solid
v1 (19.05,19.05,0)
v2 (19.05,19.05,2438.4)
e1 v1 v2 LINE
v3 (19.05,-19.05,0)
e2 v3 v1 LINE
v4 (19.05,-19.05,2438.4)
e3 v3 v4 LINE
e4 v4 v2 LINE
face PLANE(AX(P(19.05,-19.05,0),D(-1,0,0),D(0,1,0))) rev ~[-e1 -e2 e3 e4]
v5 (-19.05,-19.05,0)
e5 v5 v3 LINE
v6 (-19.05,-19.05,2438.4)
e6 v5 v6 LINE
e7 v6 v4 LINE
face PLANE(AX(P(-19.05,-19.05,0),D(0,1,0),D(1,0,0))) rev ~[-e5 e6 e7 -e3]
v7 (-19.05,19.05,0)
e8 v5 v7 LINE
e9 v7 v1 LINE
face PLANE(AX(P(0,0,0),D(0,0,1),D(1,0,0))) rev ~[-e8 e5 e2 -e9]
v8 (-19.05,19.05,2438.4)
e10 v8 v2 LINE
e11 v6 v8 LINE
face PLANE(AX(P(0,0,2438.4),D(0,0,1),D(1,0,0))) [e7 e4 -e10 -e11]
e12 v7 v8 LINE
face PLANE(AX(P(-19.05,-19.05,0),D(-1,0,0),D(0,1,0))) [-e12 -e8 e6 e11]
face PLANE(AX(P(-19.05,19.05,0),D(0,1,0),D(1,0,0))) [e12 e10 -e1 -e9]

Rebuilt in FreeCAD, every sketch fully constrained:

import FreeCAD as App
import Part
import Sketcher
Q = App.Units.Quantity


def add_polygon(sketch, points):
    """Adds a closed chain of lines whose ends are joined by coincident constraints."""
    first, n = sketch.GeometryCount, len(points)
    for a, b in zip(points, points[1:] + points[:1]):
        sketch.addGeometry(Part.LineSegment(App.Vector(*a, 0), App.Vector(*b, 0)), False)
    for i in range(n):
        sketch.addConstraint(Sketcher.Constraint("Coincident", first + i, 2, first + (i + 1) % n, 1))

doc = App.newDocument("Part")
body = doc.addObject("PartDesign::Body", "Body")

sketch1 = body.newObject("Sketcher::SketchObject", "Sketch")
sketch1.AttachmentSupport = (doc.getObject("XY_Plane"), [""])
sketch1.MapMode = "FlatFace"
add_polygon(sketch1, [(-19, 19), (-19, -19), (19, -19), (19, 19)])
sketch1.addConstraint(Sketcher.Constraint("Vertical", 0))
sketch1.addConstraint(Sketcher.Constraint("Horizontal", 1))
sketch1.addConstraint(Sketcher.Constraint("Vertical", 2))
sketch1.addConstraint(Sketcher.Constraint("Horizontal", 3))
sketch1.addConstraint(Sketcher.Constraint("Symmetric", 0, 2, 2, 2, -1, 1))
sketch1.addConstraint(Sketcher.Constraint("Equal", 3, 0))
sketch1.addConstraint(Sketcher.Constraint("DistanceX", 1, 1, 1, 2, Q("1.5 in")))
pad1 = body.newObject("PartDesign::Pad", "Pad")
pad1.Profile = sketch1
pad1.Length = Q("96 in")

doc.recompute()
